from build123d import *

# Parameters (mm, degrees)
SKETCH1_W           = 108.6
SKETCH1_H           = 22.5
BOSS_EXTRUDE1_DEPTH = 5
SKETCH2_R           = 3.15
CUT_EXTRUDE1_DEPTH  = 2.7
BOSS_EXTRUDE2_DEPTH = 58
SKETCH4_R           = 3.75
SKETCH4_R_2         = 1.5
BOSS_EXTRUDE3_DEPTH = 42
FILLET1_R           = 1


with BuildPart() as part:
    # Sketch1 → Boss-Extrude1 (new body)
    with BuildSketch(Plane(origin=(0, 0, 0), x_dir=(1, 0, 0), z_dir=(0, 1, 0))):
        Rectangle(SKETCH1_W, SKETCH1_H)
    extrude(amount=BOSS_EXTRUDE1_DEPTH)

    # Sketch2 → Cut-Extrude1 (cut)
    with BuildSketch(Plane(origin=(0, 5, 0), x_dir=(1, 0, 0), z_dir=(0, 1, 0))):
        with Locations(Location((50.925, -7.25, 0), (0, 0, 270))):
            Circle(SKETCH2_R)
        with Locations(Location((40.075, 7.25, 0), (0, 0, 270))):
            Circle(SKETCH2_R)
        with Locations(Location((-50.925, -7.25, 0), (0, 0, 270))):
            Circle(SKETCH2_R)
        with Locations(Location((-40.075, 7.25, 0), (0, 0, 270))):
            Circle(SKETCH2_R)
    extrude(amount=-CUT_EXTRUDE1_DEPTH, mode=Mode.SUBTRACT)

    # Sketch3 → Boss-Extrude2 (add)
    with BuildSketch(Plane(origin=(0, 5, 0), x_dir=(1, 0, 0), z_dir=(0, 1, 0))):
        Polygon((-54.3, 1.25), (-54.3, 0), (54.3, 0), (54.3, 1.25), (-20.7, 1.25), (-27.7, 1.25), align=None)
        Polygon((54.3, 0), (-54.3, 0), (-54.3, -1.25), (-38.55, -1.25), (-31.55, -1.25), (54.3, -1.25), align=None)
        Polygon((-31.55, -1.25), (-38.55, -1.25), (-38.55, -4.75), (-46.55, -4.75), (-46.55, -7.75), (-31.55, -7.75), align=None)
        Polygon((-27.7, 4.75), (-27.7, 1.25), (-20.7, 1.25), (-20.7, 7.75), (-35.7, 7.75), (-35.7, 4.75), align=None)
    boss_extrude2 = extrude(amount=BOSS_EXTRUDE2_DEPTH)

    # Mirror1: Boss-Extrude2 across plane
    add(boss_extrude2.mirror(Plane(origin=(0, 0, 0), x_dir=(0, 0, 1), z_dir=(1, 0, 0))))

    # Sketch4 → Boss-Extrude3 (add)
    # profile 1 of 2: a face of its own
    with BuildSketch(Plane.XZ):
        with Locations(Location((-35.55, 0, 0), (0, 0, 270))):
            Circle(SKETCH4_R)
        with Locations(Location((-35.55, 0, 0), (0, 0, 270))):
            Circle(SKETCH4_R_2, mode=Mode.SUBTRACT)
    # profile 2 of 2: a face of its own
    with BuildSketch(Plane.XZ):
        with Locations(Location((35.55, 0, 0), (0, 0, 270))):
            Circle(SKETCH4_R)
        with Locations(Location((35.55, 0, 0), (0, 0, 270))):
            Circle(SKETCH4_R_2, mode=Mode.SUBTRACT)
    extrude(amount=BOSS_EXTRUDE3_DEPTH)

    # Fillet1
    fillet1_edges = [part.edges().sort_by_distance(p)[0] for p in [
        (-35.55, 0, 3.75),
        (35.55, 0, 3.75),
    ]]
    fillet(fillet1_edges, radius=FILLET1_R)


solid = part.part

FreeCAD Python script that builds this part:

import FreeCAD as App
import Part
import Sketcher
from FreeCAD import Vector


def edges_at(feature, points):
    """Names of the edges that pass closest to the given points."""
    edges = feature.Shape.Edges
    near = lambda p: min(range(len(edges)), key=lambda i: edges[i].distToShape(Part.Vertex(*p))[0])
    return sorted({f"Edge{near(p) + 1}" for p in points})

doc = App.newDocument("Part")
body = doc.addObject("PartDesign::Body", "Body")

# Sketch on XZ plane
sketch1 = body.newObject("Sketcher::SketchObject", "Sketch")
sketch1.AttachmentSupport = (doc.getObject("XZ_Plane"), [""])
sketch1.MapMode = "FlatFace"
sketch1.addGeometry([
    Part.LineSegment(Vector(-54, -11, 0), Vector(-54, 11, 0)),
    Part.LineSegment(Vector(-54, 11, 0), Vector(54, 11, 0)),
    Part.LineSegment(Vector(54, 11, 0), Vector(54, -11, 0)),
    Part.LineSegment(Vector(54, -11, 0), Vector(-54, -11, 0)),
], False)
sketch1.addConstraint([
    Sketcher.Constraint("Coincident", 0, 2, 1, 1),
    Sketcher.Constraint("Coincident", 1, 2, 2, 1),
    Sketcher.Constraint("Coincident", 2, 2, 3, 1),
    Sketcher.Constraint("Coincident", 3, 2, 0, 1),
    Sketcher.Constraint("Vertical", 0),
    Sketcher.Constraint("Horizontal", 1),
    Sketcher.Constraint("Vertical", 2),
    Sketcher.Constraint("Horizontal", 3),
    Sketcher.Constraint("Symmetric", 0, 2, 2, 2, -1, 1),
    Sketcher.Constraint("DistanceX", 1, 1, 1, 2, 108.6),
    Sketcher.Constraint("DistanceY", 0, 1, 0, 2, 22.5),
])
pad1 = body.newObject("PartDesign::Pad", "Pad")
pad1.Profile = sketch1
pad1.Length = 5
pad1.Reversed = True

# Sketch on XZ plane
sketch2 = body.newObject("Sketcher::SketchObject", "Sketch001")
sketch2.AttachmentSupport = (doc.getObject("XZ_Plane"), [""])
sketch2.MapMode = "FlatFace"
sketch2.AttachmentOffset = App.Placement(Vector(0, 0, -5), App.Rotation())
sketch2.addGeometry([
    Part.Circle(Vector(50.9, 7.2, 0), Vector(0, 0, 1), 3.1),
    Part.Circle(Vector(40.1, -7.2, 0), Vector(0, 0, 1), 3.1),
    Part.Circle(Vector(-50.9, 7.2, 0), Vector(0, 0, 1), 3.1),
    Part.Circle(Vector(-40.1, -7.2, 0), Vector(0, 0, 1), 3.1),
], False)
sketch2.addConstraint([
    Sketcher.Constraint("Equal", 0, 1),
    Sketcher.Constraint("Equal", 1, 2),
    Sketcher.Constraint("Equal", 2, 3),
    Sketcher.Constraint("Symmetric", 0, 3, 2, 3, -2),
    Sketcher.Constraint("Symmetric", 1, 3, 3, 3, -2),
    Sketcher.Constraint("Diameter", 0, 6.3),
    Sketcher.Constraint("DistanceX", 2, 3, 1, 3, 91.0),
    Sketcher.Constraint("DistanceY", 1, 3, 0, 3, 14.5),
    Sketcher.Constraint("DistanceY", -1, 1, 0, 3, 7.25),
    Sketcher.Constraint("DistanceX", 1, 3, 0, 3, 10.85),
])
pocket1 = body.newObject("PartDesign::Pocket", "Pocket")
pocket1.Profile = sketch2
pocket1.Length = 2.7
pocket1.Reversed = True

# Sketch on XZ plane
sketch3 = body.newObject("Sketcher::SketchObject", "Sketch002")
sketch3.AttachmentSupport = (doc.getObject("XZ_Plane"), [""])
sketch3.MapMode = "FlatFace"
sketch3.AttachmentOffset = App.Placement(Vector(0, 0, -5), App.Rotation())
sketch3.addGeometry([
    Part.LineSegment(Vector(-54.3, -1.2, 0), Vector(-54.3, 1.2, 0)),  # 0
    Part.LineSegment(Vector(-54.3, 1.2, 0), Vector(-38.5, 1.2, 0)),  # 1
    Part.LineSegment(Vector(-38.5, 1.2, 0), Vector(-38.5, 4.8, 0)),  # 2
    Part.LineSegment(Vector(-38.5, 4.8, 0), Vector(-46.5, 4.8, 0)),  # 3
    Part.LineSegment(Vector(-46.5, 4.8, 0), Vector(-46.5, 7.8, 0)),  # 4
    Part.LineSegment(Vector(-46.5, 7.8, 0), Vector(-31.6, 7.8, 0)),  # 5
    Part.LineSegment(Vector(-31.6, 7.8, 0), Vector(-31.6, 1.2, 0)),  # 6
    Part.LineSegment(Vector(-31.6, 1.2, 0), Vector(54.3, 1.2, 0)),  # 7
    Part.LineSegment(Vector(54.3, 1.2, 0), Vector(54.3, -1.2, 0)),  # 8
    Part.LineSegment(Vector(54.3, -1.2, 0), Vector(-20.7, -1.2, 0)),  # 9
    Part.LineSegment(Vector(-20.7, -1.2, 0), Vector(-20.7, -7.8, 0)),  # 10
    Part.LineSegment(Vector(-20.7, -7.8, 0), Vector(-35.7, -7.8, 0)),  # 11
    Part.LineSegment(Vector(-35.7, -7.8, 0), Vector(-35.7, -4.8, 0)),  # 12
    Part.LineSegment(Vector(-35.7, -4.8, 0), Vector(-27.7, -4.8, 0)),  # 13
    Part.LineSegment(Vector(-27.7, -4.8, 0), Vector(-27.7, -1.2, 0)),  # 14
    Part.LineSegment(Vector(-27.7, -1.2, 0), Vector(-54.3, -1.2, 0)),  # 15
], False)
sketch3.addConstraint([
    Sketcher.Constraint("Coincident", 0, 2, 1, 1),
    Sketcher.Constraint("Coincident", 1, 2, 2, 1),
    Sketcher.Constraint("Coincident", 2, 2, 3, 1),
    Sketcher.Constraint("Coincident", 3, 2, 4, 1),
    Sketcher.Constraint("Coincident", 4, 2, 5, 1),
    Sketcher.Constraint("Coincident", 5, 2, 6, 1),
    Sketcher.Constraint("Coincident", 6, 2, 7, 1),
    Sketcher.Constraint("Coincident", 7, 2, 8, 1),
    Sketcher.Constraint("Coincident", 8, 2, 9, 1),
    Sketcher.Constraint("Coincident", 9, 2, 10, 1),
    Sketcher.Constraint("Coincident", 10, 2, 11, 1),
    Sketcher.Constraint("Coincident", 11, 2, 12, 1),
    Sketcher.Constraint("Coincident", 12, 2, 13, 1),
    Sketcher.Constraint("Coincident", 13, 2, 14, 1),
    Sketcher.Constraint("Coincident", 14, 2, 15, 1),
    Sketcher.Constraint("Coincident", 15, 2, 0, 1),
    Sketcher.Constraint("Vertical", 0),
    Sketcher.Constraint("Horizontal", 1),
    Sketcher.Constraint("Vertical", 2),
    Sketcher.Constraint("Horizontal", 3),
    Sketcher.Constraint("Vertical", 4),
    Sketcher.Constraint("Horizontal", 5),
    Sketcher.Constraint("Vertical", 6),
    Sketcher.Constraint("Horizontal", 7),
    Sketcher.Constraint("Vertical", 8),
    Sketcher.Constraint("Horizontal", 9),
    Sketcher.Constraint("Vertical", 10),
    Sketcher.Constraint("Horizontal", 11),
    Sketcher.Constraint("Vertical", 12),
    Sketcher.Constraint("Horizontal", 13),
    Sketcher.Constraint("Vertical", 14),
    Sketcher.Constraint("Horizontal", 15),
    Sketcher.Constraint("Symmetric", 0, 2, 8, 2, -1, 1),
    Sketcher.Constraint("Horizontal", 1, 2, 6, 2),
    Sketcher.Constraint("Horizontal", 9, 2, 14, 2),
    Sketcher.Constraint("Equal", 5, 11),
    Sketcher.Constraint("Equal", 3, 13),
    Sketcher.Constraint("Equal", 6, 10),
    Sketcher.Constraint("Equal", 4, 12),
    Sketcher.Constraint("DistanceX", 3, 2, 3, 1, 8.0),
    Sketcher.Constraint("DistanceX", 5, 1, 5, 2, 15.0),
    Sketcher.Constraint("DistanceX", 9, 2, 9, 1, 75.0),
    Sketcher.Constraint("DistanceY", 4, 1, 4, 2, 3.0),
    Sketcher.Constraint("DistanceX", 15, 2, 15, 1, 26.6),
    Sketcher.Constraint("DistanceY", 0, 1, 0, 2, 2.5),
    Sketcher.Constraint("DistanceY", 2, 1, 2, 2, 3.5),
    Sketcher.Constraint("DistanceX", 1, 1, 1, 2, 15.75),
])
pad2 = body.newObject("PartDesign::Pad", "Pad001")
pad2.Profile = sketch3
pad2.Length = 58
pad2.Reversed = True
doc.recompute()

mirrored = body.newObject("PartDesign::Mirrored", "Mirrored")
mirrored.Originals = [pad2]
mirrored.MirrorPlane = (doc.getObject("YZ_Plane"), [""])
body.Tip = mirrored

# Sketch on XZ plane
sketch4 = body.newObject("Sketcher::SketchObject", "Sketch003")
sketch4.AttachmentSupport = (doc.getObject("XZ_Plane"), [""])
sketch4.MapMode = "FlatFace"
sketch4.addGeometry([
    Part.Circle(Vector(-35.5, 0, 0), Vector(0, 0, 1), 3.8),
    Part.Circle(Vector(-35.5, 0, 0), Vector(0, 0, 1), 1.5),
    Part.Circle(Vector(35.5, 0, 0), Vector(0, 0, 1), 3.8),
    Part.Circle(Vector(35.5, 0, 0), Vector(0, 0, 1), 1.5),
], False)
sketch4.addConstraint([
    Sketcher.Constraint("Coincident", 1, 3, 0, 3),
    Sketcher.Constraint("Coincident", 3, 3, 2, 3),
    Sketcher.Constraint("Equal", 0, 2),
    Sketcher.Constraint("Equal", 1, 3),
    Sketcher.Constraint("Symmetric", 0, 3, 2, 3, -1, 1),
    Sketcher.Constraint("PointOnObject", 0, 3, -1),
    Sketcher.Constraint("Diameter", 1, 3.0),
    Sketcher.Constraint("Diameter", 0, 7.5),
    Sketcher.Constraint("DistanceX", 0, 3, 2, 3, 71.1),
])
pad3 = body.newObject("PartDesign::Pad", "Pad002")
pad3.Profile = sketch4
pad3.Length = 42
doc.recompute()

fillet = body.newObject("PartDesign::Fillet", "Fillet")
fillet.Base = (pad3, edges_at(pad3, [(-35.55, 0, 3.75), (35.55, 0, 3.75)]))
fillet.Radius = 1

doc.recompute()
